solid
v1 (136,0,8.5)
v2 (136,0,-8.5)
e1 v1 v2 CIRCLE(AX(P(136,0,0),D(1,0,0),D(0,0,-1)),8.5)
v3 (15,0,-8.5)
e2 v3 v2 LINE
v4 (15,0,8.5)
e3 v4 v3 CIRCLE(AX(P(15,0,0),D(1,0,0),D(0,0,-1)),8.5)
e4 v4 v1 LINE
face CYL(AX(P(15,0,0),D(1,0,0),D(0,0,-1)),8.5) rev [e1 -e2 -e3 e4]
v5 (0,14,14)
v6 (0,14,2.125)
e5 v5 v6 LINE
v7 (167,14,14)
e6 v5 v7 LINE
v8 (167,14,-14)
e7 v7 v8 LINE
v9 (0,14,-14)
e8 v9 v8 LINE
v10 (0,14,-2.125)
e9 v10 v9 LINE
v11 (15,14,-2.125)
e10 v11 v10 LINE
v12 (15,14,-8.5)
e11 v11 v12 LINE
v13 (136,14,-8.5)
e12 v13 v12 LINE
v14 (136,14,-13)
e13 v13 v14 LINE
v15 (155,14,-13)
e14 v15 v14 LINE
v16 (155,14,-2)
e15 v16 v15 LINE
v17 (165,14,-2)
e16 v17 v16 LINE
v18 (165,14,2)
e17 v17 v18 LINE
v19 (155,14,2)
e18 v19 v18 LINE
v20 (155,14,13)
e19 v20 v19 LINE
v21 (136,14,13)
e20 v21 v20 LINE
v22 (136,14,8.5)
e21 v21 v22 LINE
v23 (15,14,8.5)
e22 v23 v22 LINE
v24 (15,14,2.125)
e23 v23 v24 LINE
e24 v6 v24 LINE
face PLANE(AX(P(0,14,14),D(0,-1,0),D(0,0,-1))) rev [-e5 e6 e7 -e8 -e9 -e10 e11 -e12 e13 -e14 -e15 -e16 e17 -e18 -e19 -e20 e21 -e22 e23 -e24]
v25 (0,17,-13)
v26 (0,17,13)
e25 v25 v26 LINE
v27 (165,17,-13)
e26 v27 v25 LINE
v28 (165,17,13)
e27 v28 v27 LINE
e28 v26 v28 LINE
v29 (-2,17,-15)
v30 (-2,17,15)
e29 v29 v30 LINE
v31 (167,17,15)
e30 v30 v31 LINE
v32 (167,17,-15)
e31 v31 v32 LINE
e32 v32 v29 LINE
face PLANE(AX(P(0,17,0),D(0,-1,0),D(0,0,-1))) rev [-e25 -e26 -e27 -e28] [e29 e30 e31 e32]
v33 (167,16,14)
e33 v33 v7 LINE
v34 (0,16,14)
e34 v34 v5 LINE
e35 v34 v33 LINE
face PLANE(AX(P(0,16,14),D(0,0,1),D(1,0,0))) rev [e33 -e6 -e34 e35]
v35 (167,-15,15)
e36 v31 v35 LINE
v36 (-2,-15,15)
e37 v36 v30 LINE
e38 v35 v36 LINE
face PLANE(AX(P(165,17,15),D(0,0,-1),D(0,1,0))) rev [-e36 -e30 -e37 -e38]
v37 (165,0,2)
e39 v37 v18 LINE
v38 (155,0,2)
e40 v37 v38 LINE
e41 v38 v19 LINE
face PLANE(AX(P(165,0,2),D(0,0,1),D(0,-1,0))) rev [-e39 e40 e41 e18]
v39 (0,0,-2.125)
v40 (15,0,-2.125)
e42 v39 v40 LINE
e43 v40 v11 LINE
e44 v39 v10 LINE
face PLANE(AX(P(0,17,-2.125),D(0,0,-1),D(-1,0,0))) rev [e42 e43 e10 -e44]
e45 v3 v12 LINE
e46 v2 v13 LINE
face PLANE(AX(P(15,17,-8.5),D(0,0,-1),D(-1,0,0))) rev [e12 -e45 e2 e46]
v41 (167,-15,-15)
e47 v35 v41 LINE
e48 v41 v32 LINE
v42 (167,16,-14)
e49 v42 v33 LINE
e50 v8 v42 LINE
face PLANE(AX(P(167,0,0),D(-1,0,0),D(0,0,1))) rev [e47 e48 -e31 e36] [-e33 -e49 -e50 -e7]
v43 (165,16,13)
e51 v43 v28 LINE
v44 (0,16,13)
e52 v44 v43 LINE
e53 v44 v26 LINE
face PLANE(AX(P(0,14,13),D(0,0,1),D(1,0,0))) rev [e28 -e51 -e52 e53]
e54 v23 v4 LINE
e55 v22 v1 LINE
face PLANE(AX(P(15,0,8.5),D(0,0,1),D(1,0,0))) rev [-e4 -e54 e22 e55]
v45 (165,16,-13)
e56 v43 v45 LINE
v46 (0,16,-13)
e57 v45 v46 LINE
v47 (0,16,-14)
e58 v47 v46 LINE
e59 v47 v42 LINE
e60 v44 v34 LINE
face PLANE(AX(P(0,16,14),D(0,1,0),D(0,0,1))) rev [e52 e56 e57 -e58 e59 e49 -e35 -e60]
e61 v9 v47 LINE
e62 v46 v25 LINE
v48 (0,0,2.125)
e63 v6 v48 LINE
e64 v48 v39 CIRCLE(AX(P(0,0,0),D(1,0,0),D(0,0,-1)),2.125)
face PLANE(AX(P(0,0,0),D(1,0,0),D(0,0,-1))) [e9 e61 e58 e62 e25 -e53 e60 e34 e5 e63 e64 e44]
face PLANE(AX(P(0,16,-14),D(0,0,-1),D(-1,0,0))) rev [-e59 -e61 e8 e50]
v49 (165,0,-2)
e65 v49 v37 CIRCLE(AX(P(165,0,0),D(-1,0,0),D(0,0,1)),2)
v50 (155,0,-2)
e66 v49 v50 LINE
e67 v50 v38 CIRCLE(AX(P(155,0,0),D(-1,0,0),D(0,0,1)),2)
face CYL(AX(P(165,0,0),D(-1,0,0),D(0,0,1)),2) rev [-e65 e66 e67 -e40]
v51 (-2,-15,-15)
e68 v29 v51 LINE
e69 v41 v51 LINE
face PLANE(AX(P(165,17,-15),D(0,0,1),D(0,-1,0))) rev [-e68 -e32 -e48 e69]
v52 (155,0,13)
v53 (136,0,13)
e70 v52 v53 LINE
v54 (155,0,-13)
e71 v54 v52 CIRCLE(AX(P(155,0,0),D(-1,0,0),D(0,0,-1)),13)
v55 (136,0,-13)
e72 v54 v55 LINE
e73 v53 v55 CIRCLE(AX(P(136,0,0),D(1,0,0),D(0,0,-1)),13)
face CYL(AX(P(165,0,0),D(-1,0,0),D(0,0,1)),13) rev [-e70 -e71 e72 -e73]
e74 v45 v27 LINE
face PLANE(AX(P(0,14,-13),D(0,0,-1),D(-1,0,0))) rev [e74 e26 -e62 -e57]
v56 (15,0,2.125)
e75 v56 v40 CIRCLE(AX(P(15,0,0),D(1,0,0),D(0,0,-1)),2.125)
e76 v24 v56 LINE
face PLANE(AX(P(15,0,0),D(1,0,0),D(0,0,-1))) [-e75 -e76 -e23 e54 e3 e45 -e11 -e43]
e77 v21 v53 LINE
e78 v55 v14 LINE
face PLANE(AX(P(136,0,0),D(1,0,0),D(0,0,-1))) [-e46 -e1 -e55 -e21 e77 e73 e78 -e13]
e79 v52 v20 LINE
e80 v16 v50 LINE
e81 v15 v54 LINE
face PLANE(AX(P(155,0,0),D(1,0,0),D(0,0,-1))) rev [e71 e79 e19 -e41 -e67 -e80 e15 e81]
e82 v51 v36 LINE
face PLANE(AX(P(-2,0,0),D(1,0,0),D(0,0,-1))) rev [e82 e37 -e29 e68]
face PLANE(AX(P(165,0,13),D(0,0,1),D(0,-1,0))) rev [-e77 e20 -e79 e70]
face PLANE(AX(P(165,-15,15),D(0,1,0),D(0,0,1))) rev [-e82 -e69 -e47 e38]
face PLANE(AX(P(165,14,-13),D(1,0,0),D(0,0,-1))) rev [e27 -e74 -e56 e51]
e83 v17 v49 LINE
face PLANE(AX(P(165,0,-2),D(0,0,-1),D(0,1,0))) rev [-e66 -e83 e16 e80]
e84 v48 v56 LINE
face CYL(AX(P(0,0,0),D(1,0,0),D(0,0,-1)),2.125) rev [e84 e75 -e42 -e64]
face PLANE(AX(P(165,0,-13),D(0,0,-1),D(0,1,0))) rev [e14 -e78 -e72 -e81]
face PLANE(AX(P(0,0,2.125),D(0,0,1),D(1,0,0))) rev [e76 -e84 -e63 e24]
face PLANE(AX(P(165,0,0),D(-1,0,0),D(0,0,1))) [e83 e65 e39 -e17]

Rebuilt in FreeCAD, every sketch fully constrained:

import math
import FreeCAD as App
import Part
import Sketcher


def add_polygon(sketch, points):
    """Adds a closed chain of lines whose ends are joined by coincident constraints."""
    first, n = sketch.GeometryCount, len(points)
    for a, b in zip(points, points[1:] + points[:1]):
        sketch.addGeometry(Part.LineSegment(App.Vector(*a, 0), App.Vector(*b, 0)), False)
    for i in range(n):
        sketch.addConstraint(Sketcher.Constraint("Coincident", first + i, 2, first + (i + 1) % n, 1))

doc = App.newDocument("Part")
body = doc.addObject("PartDesign::Body", "Body")

# Sketch on YZ plane
sketch1 = body.newObject("Sketcher::SketchObject", "Sketch")
sketch1.AttachmentSupport = (doc.getObject("YZ_Plane"), [""])
sketch1.MapMode = "FlatFace"
sketch1.addGeometry(Part.LineSegment(App.Vector(0, 13, 0), App.Vector(17, 13, 0)), False)
sketch1.addGeometry(Part.LineSegment(App.Vector(17, 13, 0), App.Vector(17, 15, 0)), False)
sketch1.addGeometry(Part.LineSegment(App.Vector(17, 15, 0), App.Vector(-15, 15, 0)), False)
sketch1.addGeometry(Part.LineSegment(App.Vector(-15, 15, 0), App.Vector(-15, -15, 0)), False)
sketch1.addGeometry(Part.LineSegment(App.Vector(-15, -15, 0), App.Vector(17, -15, 0)), False)
sketch1.addGeometry(Part.LineSegment(App.Vector(17, -15, 0), App.Vector(17, -13, 0)), False)
sketch1.addGeometry(Part.LineSegment(App.Vector(17, -13, 0), App.Vector(0, -13, 0)), False)
sketch1.addGeometry(Part.ArcOfCircle(Part.Circle(App.Vector(0, 0, 0), App.Vector(0, 0, 1), 13), math.radians(90), math.radians(270)), False)
sketch1.addConstraint(Sketcher.Constraint("Coincident", 0, 2, 1, 1))
sketch1.addConstraint(Sketcher.Constraint("Coincident", 1, 2, 2, 1))
sketch1.addConstraint(Sketcher.Constraint("Coincident", 2, 2, 3, 1))
sketch1.addConstraint(Sketcher.Constraint("Coincident", 3, 2, 4, 1))
sketch1.addConstraint(Sketcher.Constraint("Coincident", 4, 2, 5, 1))
sketch1.addConstraint(Sketcher.Constraint("Coincident", 5, 2, 6, 1))
sketch1.addConstraint(Sketcher.Constraint("Tangent", 6, 2, 7, 2))
sketch1.addConstraint(Sketcher.Constraint("Tangent", 7, 1, 0, 1))
sketch1.addConstraint(Sketcher.Constraint("Horizontal", 0))
sketch1.addConstraint(Sketcher.Constraint("Vertical", 1))
sketch1.addConstraint(Sketcher.Constraint("Horizontal", 2))
sketch1.addConstraint(Sketcher.Constraint("Vertical", 3))
sketch1.addConstraint(Sketcher.Constraint("Horizontal", 4))
sketch1.addConstraint(Sketcher.Constraint("Vertical", 5))
sketch1.addConstraint(Sketcher.Constraint("Horizontal", 6))
sketch1.addConstraint(Sketcher.Constraint("Coincident", 7, 3, -1, 1))
sketch1.addConstraint(Sketcher.Constraint("Symmetric", 1, 2, 4, 2, -1))
sketch1.addConstraint(Sketcher.Constraint("Radius", 7, 13.0))
sketch1.addConstraint(Sketcher.Constraint("DistanceX", 0, 1, 0, 2, 17.0))
sketch1.addConstraint(Sketcher.Constraint("DistanceX", 2, 2, 2, 1, 32.0))
sketch1.addConstraint(Sketcher.Constraint("DistanceY", 1, 1, 1, 2, 2.0))
pad1 = body.newObject("PartDesign::Pad", "Pad")
pad1.Profile = sketch1
pad1.Length = 165

# Sketch on YZ plane
sketch2 = body.newObject("Sketcher::SketchObject", "Sketch001")
sketch2.AttachmentSupport = (doc.getObject("YZ_Plane"), [""])
sketch2.MapMode = "FlatFace"
sketch2.AttachmentOffset = App.Placement(App.Vector(0, 0, 165), App.Rotation())
add_polygon(sketch2, [(17, 15), (-15, 15), (-15, -15), (17, -15)])  # lines 0-3
sketch2.addConstraint(Sketcher.Constraint("Horizontal", 0))
sketch2.addConstraint(Sketcher.Constraint("Vertical", 1))
sketch2.addConstraint(Sketcher.Constraint("Horizontal", 2))
sketch2.addConstraint(Sketcher.Constraint("Vertical", 3))
sketch2.addConstraint(Sketcher.Constraint("DistanceX", 0, 2, 0, 1, 32.0))
sketch2.addConstraint(Sketcher.Constraint("DistanceY", 1, 2, 1, 1, 30.0))
sketch2.addConstraint(Sketcher.Constraint("DistanceX", 0, 2, -1, 1, 15.0))
sketch2.addConstraint(Sketcher.Constraint("DistanceY", -1, 1, 0, 2, 15.0))
pad2 = body.newObject("PartDesign::Pad", "Pad001")
pad2.Profile = sketch2
pad2.Length = 2

# Sketch on YZ plane
sketch3 = body.newObject("Sketcher::SketchObject", "Sketch002")
sketch3.AttachmentSupport = (doc.getObject("YZ_Plane"), [""])
sketch3.MapMode = "FlatFace"
add_polygon(sketch3, [(17, -15), (-15, -15), (-15, 15), (17, 15)])  # lines 0-3
sketch3.addConstraint(Sketcher.Constraint("Horizontal", 0))
sketch3.addConstraint(Sketcher.Constraint("Vertical", 1))
sketch3.addConstraint(Sketcher.Constraint("Horizontal", 2))
sketch3.addConstraint(Sketcher.Constraint("Vertical", 3))
sketch3.addConstraint(Sketcher.Constraint("DistanceX", 0, 2, 0, 1, 32.0))
sketch3.addConstraint(Sketcher.Constraint("DistanceY", 1, 1, 1, 2, 30.0))
sketch3.addConstraint(Sketcher.Constraint("DistanceX", 0, 2, -1, 1, 15.0))
sketch3.addConstraint(Sketcher.Constraint("DistanceY", 0, 2, -1, 1, 15.0))
pad3 = body.newObject("PartDesign::Pad", "Pad002")
pad3.Profile = sketch3
pad3.Length = 2
pad3.Reversed = True

# Sketch on YZ plane
sketch4 = body.newObject("Sketcher::SketchObject", "Sketch003")
sketch4.AttachmentSupport = (doc.getObject("YZ_Plane"), [""])
sketch4.MapMode = "FlatFace"
sketch4.AttachmentOffset = App.Placement(App.Vector(0, 0, 155), App.Rotation())
sketch4.addGeometry(Part.LineSegment(App.Vector(17, -13, 0), App.Vector(0, -13, 0)), False)
sketch4.addGeometry(Part.ArcOfCircle(Part.Circle(App.Vector(0, 0, 0), App.Vector(0, 0, 1), 13), math.radians(90), math.radians(270)), False)
sketch4.addGeometry(Part.LineSegment(App.Vector(0, 13, 0), App.Vector(17, 13, 0)), False)
sketch4.addGeometry(Part.LineSegment(App.Vector(17, 13, 0), App.Vector(17, -13, 0)), False)
sketch4.addConstraint(Sketcher.Constraint("Tangent", 0, 2, 1, 2))
sketch4.addConstraint(Sketcher.Constraint("Tangent", 1, 1, 2, 1))
sketch4.addConstraint(Sketcher.Constraint("Coincident", 2, 2, 3, 1))
sketch4.addConstraint(Sketcher.Constraint("Coincident", 3, 2, 0, 1))
sketch4.addConstraint(Sketcher.Constraint("Horizontal", 0))
sketch4.addConstraint(Sketcher.Constraint("Horizontal", 2))
sketch4.addConstraint(Sketcher.Constraint("Vertical", 3))
sketch4.addConstraint(Sketcher.Constraint("Coincident", 1, 3, -1, 1))
sketch4.addConstraint(Sketcher.Constraint("Radius", 1, 13.0))
sketch4.addConstraint(Sketcher.Constraint("DistanceX", 0, 2, 0, 1, 17.0))
pad4 = body.newObject("PartDesign::Pad", "Pad003")
pad4.Profile = sketch4
pad4.Length = 10

# Sketch on YZ plane
sketch5 = body.newObject("Sketcher::SketchObject", "Sketch004")
sketch5.AttachmentSupport = (doc.getObject("YZ_Plane"), [""])
sketch5.MapMode = "FlatFace"
sketch5.AttachmentOffset = App.Placement(App.Vector(0, 0, 155), App.Rotation())
sketch5.addGeometry(Part.LineSegment(App.Vector(17, -2, 0), App.Vector(0, -2, 0)), False)
sketch5.addGeometry(Part.ArcOfCircle(Part.Circle(App.Vector(0, 0, 0), App.Vector(0, 0, 1), 2), math.radians(90), math.radians(270)), False)
sketch5.addGeometry(Part.LineSegment(App.Vector(0, 2, 0), App.Vector(17, 2, 0)), False)
sketch5.addGeometry(Part.LineSegment(App.Vector(17, 2, 0), App.Vector(17, -2, 0)), False)
sketch5.addConstraint(Sketcher.Constraint("Tangent", 0, 2, 1, 2))
sketch5.addConstraint(Sketcher.Constraint("Tangent", 1, 1, 2, 1))
sketch5.addConstraint(Sketcher.Constraint("Coincident", 2, 2, 3, 1))
sketch5.addConstraint(Sketcher.Constraint("Coincident", 3, 2, 0, 1))
sketch5.addConstraint(Sketcher.Constraint("Horizontal", 0))
sketch5.addConstraint(Sketcher.Constraint("Horizontal", 2))
sketch5.addConstraint(Sketcher.Constraint("Vertical", 3))
sketch5.addConstraint(Sketcher.Constraint("Coincident", 1, 3, -1, 1))
sketch5.addConstraint(Sketcher.Constraint("Radius", 1, 2.0))
sketch5.addConstraint(Sketcher.Constraint("DistanceX", 0, 2, 0, 1, 17.0))
pocket1 = body.newObject("PartDesign::Pocket", "Pocket")
pocket1.Profile = sketch5
pocket1.Length = 10
pocket1.Reversed = True

# Sketch on YZ plane
sketch6 = body.newObject("Sketcher::SketchObject", "Sketch005")
sketch6.AttachmentSupport = (doc.getObject("YZ_Plane"), [""])
sketch6.MapMode = "FlatFace"
sketch6.addGeometry(Part.LineSegment(App.Vector(0, -13, 0), App.Vector(17, -13, 0)), False)
sketch6.addGeometry(Part.LineSegment(App.Vector(17, -13, 0), App.Vector(17, 13, 0)), False)
sketch6.addGeometry(Part.LineSegment(App.Vector(17, 13, 0), App.Vector(0, 13, 0)), False)
sketch6.addGeometry(Part.ArcOfCircle(Part.Circle(App.Vector(0, 0, 0), App.Vector(0, 0, 1), 13), math.radians(90), math.radians(270)), False)
sketch6.addConstraint(Sketcher.Constraint("Coincident", 0, 2, 1, 1))
sketch6.addConstraint(Sketcher.Constraint("Coincident", 1, 2, 2, 1))
sketch6.addConstraint(Sketcher.Constraint("Tangent", 2, 2, 3, 1))
sketch6.addConstraint(Sketcher.Constraint("Tangent", 3, 2, 0, 1))
sketch6.addConstraint(Sketcher.Constraint("Horizontal", 0))
sketch6.addConstraint(Sketcher.Constraint("Vertical", 1))
sketch6.addConstraint(Sketcher.Constraint("Horizontal", 2))
sketch6.addConstraint(Sketcher.Constraint("Coincident", 3, 3, -1, 1))
sketch6.addConstraint(Sketcher.Constraint("Radius", 3, 13.0))
sketch6.addConstraint(Sketcher.Constraint("DistanceX", 0, 1, 0, 2, 17.0))
pad5 = body.newObject("PartDesign::Pad", "Pad004")
pad5.Profile = sketch6
pad5.Length = 15

# Sketch on YZ plane
sketch7 = body.newObject("Sketcher::SketchObject", "Sketch006")
sketch7.AttachmentSupport = (doc.getObject("YZ_Plane"), [""])
sketch7.MapMode = "FlatFace"
sketch7.AttachmentOffset = App.Placement(App.Vector(0, 0, 15), App.Rotation())
sketch7.addGeometry(Part.LineSegment(App.Vector(17, 2.125, 0), App.Vector(0, 2.125, 0)), False)
sketch7.addGeometry(Part.ArcOfCircle(Part.Circle(App.Vector(0, 0, 0), App.Vector(0, 0, 1), 2.125), math.radians(90), math.radians(270)), False)
sketch7.addGeometry(Part.LineSegment(App.Vector(0, -2.125, 0), App.Vector(17, -2.125, 0)), False)
sketch7.addGeometry(Part.LineSegment(App.Vector(17, -2.125, 0), App.Vector(17, 2.125, 0)), False)
sketch7.addConstraint(Sketcher.Constraint("Tangent", 0, 2, 1, 1))
sketch7.addConstraint(Sketcher.Constraint("Tangent", 1, 2, 2, 1))
sketch7.addConstraint(Sketcher.Constraint("Coincident", 2, 2, 3, 1))
sketch7.addConstraint(Sketcher.Constraint("Coincident", 3, 2, 0, 1))
sketch7.addConstraint(Sketcher.Constraint("Horizontal", 0))
sketch7.addConstraint(Sketcher.Constraint("Horizontal", 2))
sketch7.addConstraint(Sketcher.Constraint("Vertical", 3))
sketch7.addConstraint(Sketcher.Constraint("Coincident", 1, 3, -1, 1))
sketch7.addConstraint(Sketcher.Constraint("DistanceX", 0, 2, 0, 1, 17.0))
sketch7.addConstraint(Sketcher.Constraint("Radius", 1, 2.125))
pocket2 = body.newObject("PartDesign::Pocket", "Pocket001")
pocket2.Profile = sketch7
pocket2.Length = 15

# Sketch on YZ plane
sketch8 = body.newObject("Sketcher::SketchObject", "Sketch007")
sketch8.AttachmentSupport = (doc.getObject("YZ_Plane"), [""])
sketch8.MapMode = "FlatFace"
sketch8.AttachmentOffset = App.Placement(App.Vector(0, 0, 15), App.Rotation())
sketch8.addGeometry(Part.LineSegment(App.Vector(0, -13, 0), App.Vector(17, -13, 0)), False)
sketch8.addGeometry(Part.LineSegment(App.Vector(17, -13, 0), App.Vector(17, 13, 0)), False)
sketch8.addGeometry(Part.LineSegment(App.Vector(17, 13, 0), App.Vector(0, 13, 0)), False)
sketch8.addGeometry(Part.ArcOfCircle(Part.Circle(App.Vector(0, 0, 0), App.Vector(0, 0, 1), 13), math.radians(90), math.radians(270)), False)
sketch8.addConstraint(Sketcher.Constraint("Coincident", 0, 2, 1, 1))
sketch8.addConstraint(Sketcher.Constraint("Coincident", 1, 2, 2, 1))
sketch8.addConstraint(Sketcher.Constraint("Tangent", 2, 2, 3, 1))
sketch8.addConstraint(Sketcher.Constraint("Tangent", 3, 2, 0, 1))
sketch8.addConstraint(Sketcher.Constraint("Horizontal", 0))
sketch8.addConstraint(Sketcher.Constraint("Vertical", 1))
sketch8.addConstraint(Sketcher.Constraint("Horizontal", 2))
sketch8.addConstraint(Sketcher.Constraint("Coincident", 3, 3, -1, 1))
sketch8.addConstraint(Sketcher.Constraint("Radius", 3, 13.0))
sketch8.addConstraint(Sketcher.Constraint("DistanceX", 0, 1, 0, 2, 17.0))
pad6 = body.newObject("PartDesign::Pad", "Pad005")
pad6.Profile = sketch8
pad6.Length = 121

# Sketch on YZ plane
sketch9 = body.newObject("Sketcher::SketchObject", "Sketch008")
sketch9.AttachmentSupport = (doc.getObject("YZ_Plane"), [""])
sketch9.MapMode = "FlatFace"
sketch9.AttachmentOffset = App.Placement(App.Vector(0, 0, 136), App.Rotation())
sketch9.addGeometry(Part.LineSegment(App.Vector(17, 8.5, 0), App.Vector(0, 8.5, 0)), False)
sketch9.addGeometry(Part.ArcOfCircle(Part.Circle(App.Vector(0, 0, 0), App.Vector(0, 0, 1), 8.5), math.radians(90), math.radians(270)), False)
sketch9.addGeometry(Part.LineSegment(App.Vector(0, -8.5, 0), App.Vector(17, -8.5, 0)), False)
sketch9.addGeometry(Part.LineSegment(App.Vector(17, -8.5, 0), App.Vector(17, 8.5, 0)), False)
sketch9.addConstraint(Sketcher.Constraint("Tangent", 0, 2, 1, 1))
sketch9.addConstraint(Sketcher.Constraint("Tangent", 1, 2, 2, 1))
sketch9.addConstraint(Sketcher.Constraint("Coincident", 2, 2, 3, 1))
sketch9.addConstraint(Sketcher.Constraint("Coincident", 3, 2, 0, 1))
sketch9.addConstraint(Sketcher.Constraint("Horizontal", 0))
sketch9.addConstraint(Sketcher.Constraint("Horizontal", 2))
sketch9.addConstraint(Sketcher.Constraint("Vertical", 3))
sketch9.addConstraint(Sketcher.Constraint("Coincident", 1, 3, -1, 1))
sketch9.addConstraint(Sketcher.Constraint("Equal", 2, 3))
sketch9.addConstraint(Sketcher.Constraint("Radius", 1, 8.5))
pocket3 = body.newObject("PartDesign::Pocket", "Pocket002")
pocket3.Profile = sketch9
pocket3.Length = 121

# Sketch on XZ plane
sketch10 = body.newObject("Sketcher::SketchObject", "Sketch009")
sketch10.AttachmentSupport = (doc.getObject("XZ_Plane"), [""])
sketch10.MapMode = "FlatFace"
sketch10.AttachmentOffset = App.Placement(App.Vector(0, 0, -17), App.Rotation())
add_polygon(sketch10, [(-2, -15), (-2, 15), (167, 15), (167, -15)])  # lines 0-3
sketch10.addConstraint(Sketcher.Constraint("Vertical", 0))
sketch10.addConstraint(Sketcher.Constraint("Horizontal", 1))
sketch10.addConstraint(Sketcher.Constraint("Vertical", 2))
sketch10.addConstraint(Sketcher.Constraint("Horizontal", 3))
sketch10.addConstraint(Sketcher.Constraint("DistanceX", 1, 1, 1, 2, 169.0))
sketch10.addConstraint(Sketcher.Constraint("DistanceY", 0, 1, 0, 2, 30.0))
sketch10.addConstraint(Sketcher.Constraint("DistanceX", 0, 2, -1, 1, 2.0))
sketch10.addConstraint(Sketcher.Constraint("DistanceY", -1, 1, 0, 2, 15.0))
pocket4 = body.newObject("PartDesign::Pocket", "Pocket003")
pocket4.Profile = sketch10
pocket4.Length = 3
pocket4.Reversed = True

# Sketch on XZ plane
sketch11 = body.newObject("Sketcher::SketchObject", "Sketch010")
sketch11.AttachmentSupport = (doc.getObject("XZ_Plane"), [""])
sketch11.MapMode = "FlatFace"
sketch11.AttachmentOffset = App.Placement(App.Vector(0, 0, -14), App.Rotation())
add_polygon(sketch11, [(-2, -15), (-2, 15), (167, 15), (167, -15)])  # lines 0-3
sketch11.addConstraint(Sketcher.Constraint("Vertical", 0))
sketch11.addConstraint(Sketcher.Constraint("Horizontal", 1))
sketch11.addConstraint(Sketcher.Constraint("Vertical", 2))
sketch11.addConstraint(Sketcher.Constraint("Horizontal", 3))
sketch11.addConstraint(Sketcher.Constraint("DistanceX", 1, 1, 1, 2, 169.0))
sketch11.addConstraint(Sketcher.Constraint("DistanceY", 0, 1, 0, 2, 30.0))
sketch11.addConstraint(Sketcher.Constraint("DistanceX", 0, 2, -1, 1, 2.0))
sketch11.addConstraint(Sketcher.Constraint("DistanceY", -1, 1, 0, 2, 15.0))
pad7 = body.newObject("PartDesign::Pad", "Pad006")
pad7.Profile = sketch11
pad7.Length = 3
pad7.Reversed = True

# Sketch on YZ plane
sketch12 = body.newObject("Sketcher::SketchObject", "Sketch011")
sketch12.AttachmentSupport = (doc.getObject("YZ_Plane"), [""])
sketch12.MapMode = "FlatFace"
sketch12.AttachmentOffset = App.Placement(App.Vector(0, 0, 167), App.Rotation())
add_polygon(sketch12, [(16, 14), (14, 14), (14, -14), (16, -14)])  # lines 0-3
sketch12.addConstraint(Sketcher.Constraint("Horizontal", 0))
sketch12.addConstraint(Sketcher.Constraint("Vertical", 1))
sketch12.addConstraint(Sketcher.Constraint("Horizontal", 2))
sketch12.addConstraint(Sketcher.Constraint("Vertical", 3))
sketch12.addConstraint(Sketcher.Constraint("DistanceX", 0, 2, 0, 1, 2.0))
sketch12.addConstraint(Sketcher.Constraint("DistanceY", 1, 2, 1, 1, 28.0))
sketch12.addConstraint(Sketcher.Constraint("DistanceX", -1, 1, 0, 2, 14.0))
sketch12.addConstraint(Sketcher.Constraint("DistanceY", -1, 1, 0, 2, 14.0))
pocket5 = body.newObject("PartDesign::Pocket", "Pocket004")
pocket5.Profile = sketch12
pocket5.Length = 167

# Sketch on XZ plane
sketch13 = body.newObject("Sketcher::SketchObject", "Sketch012")
sketch13.AttachmentSupport = (doc.getObject("XZ_Plane"), [""])
sketch13.MapMode = "FlatFace"
sketch13.AttachmentOffset = App.Placement(App.Vector(0, 0, -17), App.Rotation())
add_polygon(sketch13, [(0, -13), (0, 13), (165, 13), (165, -13)])  # lines 0-3
sketch13.addConstraint(Sketcher.Constraint("Vertical", 0))
sketch13.addConstraint(Sketcher.Constraint("Horizontal", 1))
sketch13.addConstraint(Sketcher.Constraint("Vertical", 2))
sketch13.addConstraint(Sketcher.Constraint("Horizontal", 3))
sketch13.addConstraint(Sketcher.Constraint("Symmetric", 0, 2, 3, 2, -1, 1))
sketch13.addConstraint(Sketcher.Constraint("DistanceX", 1, 1, 1, 2, 165.0))
sketch13.addConstraint(Sketcher.Constraint("DistanceY", 0, 1, 0, 2, 26.0))
pocket6 = body.newObject("PartDesign::Pocket", "Pocket005")
pocket6.Profile = sketch13
pocket6.Length = 3
pocket6.Reversed = True

doc.recompute()
